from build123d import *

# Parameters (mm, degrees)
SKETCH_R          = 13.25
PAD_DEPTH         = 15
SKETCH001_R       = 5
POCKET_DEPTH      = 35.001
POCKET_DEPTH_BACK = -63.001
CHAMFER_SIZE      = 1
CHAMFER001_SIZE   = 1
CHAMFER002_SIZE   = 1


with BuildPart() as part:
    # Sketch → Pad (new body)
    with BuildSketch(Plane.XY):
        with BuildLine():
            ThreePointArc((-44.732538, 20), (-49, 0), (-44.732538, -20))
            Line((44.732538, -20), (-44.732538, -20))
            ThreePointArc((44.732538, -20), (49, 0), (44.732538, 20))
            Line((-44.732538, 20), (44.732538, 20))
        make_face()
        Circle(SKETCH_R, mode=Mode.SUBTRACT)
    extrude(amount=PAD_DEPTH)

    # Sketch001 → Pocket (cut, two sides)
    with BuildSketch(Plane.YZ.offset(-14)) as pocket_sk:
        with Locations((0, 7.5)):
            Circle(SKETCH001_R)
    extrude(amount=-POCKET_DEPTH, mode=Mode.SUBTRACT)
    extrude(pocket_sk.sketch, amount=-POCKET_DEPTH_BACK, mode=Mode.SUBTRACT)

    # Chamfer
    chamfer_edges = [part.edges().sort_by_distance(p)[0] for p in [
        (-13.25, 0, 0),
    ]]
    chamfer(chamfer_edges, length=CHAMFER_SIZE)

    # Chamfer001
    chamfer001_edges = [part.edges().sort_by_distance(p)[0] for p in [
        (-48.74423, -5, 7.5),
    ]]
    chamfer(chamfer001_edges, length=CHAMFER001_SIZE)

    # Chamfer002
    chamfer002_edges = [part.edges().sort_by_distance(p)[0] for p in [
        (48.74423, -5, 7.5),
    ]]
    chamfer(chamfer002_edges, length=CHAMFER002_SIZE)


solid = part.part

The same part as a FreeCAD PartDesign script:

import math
import FreeCAD as App
import Part
import Sketcher
Q = App.Units.Quantity


def edges_at(feature, points):
    """Names of the edges that pass closest to the given points."""
    edges = feature.Shape.Edges
    near = lambda p: min(range(len(edges)), key=lambda i: edges[i].distToShape(Part.Vertex(*p))[0])
    return sorted({f"Edge{near(p) + 1}" for p in points})

doc = App.newDocument("Part")
body = doc.addObject("PartDesign::Body", "Body")

sketch1 = doc.addObject("Sketcher::SketchObject", "Sketch")
body.addObject(sketch1)
sketch1.AttachmentSupport = (doc.XY_Plane, [""])
sketch1.MapMode = "FlatFace"
sketch1.addGeometry([
    Part.ArcOfCircle(Part.Circle(App.Vector(0, 0, 0), App.Vector(0, 0, 1), 49), math.radians(156), math.radians(204)),
    Part.LineSegment(App.Vector(-45, -20, 0), App.Vector(45, -20, 0)),
    Part.ArcOfCircle(Part.Circle(App.Vector(0, 0, 0), App.Vector(0, 0, 1), 49), math.radians(-24), math.radians(24)),
    Part.LineSegment(App.Vector(45, 20, 0), App.Vector(-45, 20, 0)),
    Part.Circle(App.Vector(0, 0, 0), App.Vector(0, 0, 1), 13),
], False)
sketch1.addConstraint([
    Sketcher.Constraint("Coincident", 0, 2, 1, 1),
    Sketcher.Constraint("Coincident", 1, 2, 2, 1),
    Sketcher.Constraint("Coincident", 2, 2, 3, 1),
    Sketcher.Constraint("Coincident", 3, 2, 0, 1),
    Sketcher.Constraint("Horizontal", 1),
    Sketcher.Constraint("Horizontal", 3),
    Sketcher.Constraint("Coincident", 0, 3, -1, 1),
    Sketcher.Constraint("Coincident", 2, 3, -1, 1),
    Sketcher.Constraint("Coincident", 4, 3, -1, 1),
    Sketcher.Constraint("Equal", 0, 2),
    Sketcher.Constraint("Vertical", 1, 2, 2, 2),
    Sketcher.Constraint("Diameter", 4, Q("26.5 mm")),
    Sketcher.Constraint("DistanceY", 0, 2, -1, 1, Q("20 mm")),
    Sketcher.Constraint("Radius", 0, Q("48.999995 mm")),
])
pad1 = doc.addObject("PartDesign::Pad", "Pad")
body.addObject(pad1)
pad1.Profile = sketch1
pad1.Length = 15

sketch2 = doc.addObject("Sketcher::SketchObject", "Sketch001")
body.addObject(sketch2)
sketch2.AttachmentSupport = (doc.YZ_Plane, [""])
sketch2.MapMode = "FlatFace"
sketch2.AttachmentOffset = App.Placement(App.Vector(0, 0, -14), App.Rotation())
sketch2.addGeometry(Part.Circle(App.Vector(0, 8, 0), App.Vector(0, 0, 1), 5), False)
sketch2.addConstraint([
    Sketcher.Constraint("PointOnObject", 0, 3, -2),
    Sketcher.Constraint("Diameter", 0, Q("10 mm")),
    Sketcher.Constraint("DistanceY", -1, 1, 0, 3, Q("7.5 mm")),
])
pocket1 = doc.addObject("PartDesign::Pocket", "Pocket")
body.addObject(pocket1)
pocket1.Profile = sketch2
pocket1.Type = "ThroughAll"
pocket1.Midplane = True
doc.recompute()

chamfer = doc.addObject("PartDesign::Chamfer", "Chamfer")
body.addObject(chamfer)
chamfer.Base = (pocket1, edges_at(pocket1, [(-13.25, 0, 0)]))
chamfer.Size = 1
doc.recompute()

chamfer2 = doc.addObject("PartDesign::Chamfer", "Chamfer001")
body.addObject(chamfer2)
chamfer2.Base = (chamfer, edges_at(chamfer, [(-48.744, -5, 7.5)]))
chamfer2.Size = 1
doc.recompute()

chamfer3 = doc.addObject("PartDesign::Chamfer", "Chamfer002")
body.addObject(chamfer3)
chamfer3.Base = (chamfer2, edges_at(chamfer2, [(48.744, -5, 7.5)]))
chamfer3.Size = 1

doc.recompute()
